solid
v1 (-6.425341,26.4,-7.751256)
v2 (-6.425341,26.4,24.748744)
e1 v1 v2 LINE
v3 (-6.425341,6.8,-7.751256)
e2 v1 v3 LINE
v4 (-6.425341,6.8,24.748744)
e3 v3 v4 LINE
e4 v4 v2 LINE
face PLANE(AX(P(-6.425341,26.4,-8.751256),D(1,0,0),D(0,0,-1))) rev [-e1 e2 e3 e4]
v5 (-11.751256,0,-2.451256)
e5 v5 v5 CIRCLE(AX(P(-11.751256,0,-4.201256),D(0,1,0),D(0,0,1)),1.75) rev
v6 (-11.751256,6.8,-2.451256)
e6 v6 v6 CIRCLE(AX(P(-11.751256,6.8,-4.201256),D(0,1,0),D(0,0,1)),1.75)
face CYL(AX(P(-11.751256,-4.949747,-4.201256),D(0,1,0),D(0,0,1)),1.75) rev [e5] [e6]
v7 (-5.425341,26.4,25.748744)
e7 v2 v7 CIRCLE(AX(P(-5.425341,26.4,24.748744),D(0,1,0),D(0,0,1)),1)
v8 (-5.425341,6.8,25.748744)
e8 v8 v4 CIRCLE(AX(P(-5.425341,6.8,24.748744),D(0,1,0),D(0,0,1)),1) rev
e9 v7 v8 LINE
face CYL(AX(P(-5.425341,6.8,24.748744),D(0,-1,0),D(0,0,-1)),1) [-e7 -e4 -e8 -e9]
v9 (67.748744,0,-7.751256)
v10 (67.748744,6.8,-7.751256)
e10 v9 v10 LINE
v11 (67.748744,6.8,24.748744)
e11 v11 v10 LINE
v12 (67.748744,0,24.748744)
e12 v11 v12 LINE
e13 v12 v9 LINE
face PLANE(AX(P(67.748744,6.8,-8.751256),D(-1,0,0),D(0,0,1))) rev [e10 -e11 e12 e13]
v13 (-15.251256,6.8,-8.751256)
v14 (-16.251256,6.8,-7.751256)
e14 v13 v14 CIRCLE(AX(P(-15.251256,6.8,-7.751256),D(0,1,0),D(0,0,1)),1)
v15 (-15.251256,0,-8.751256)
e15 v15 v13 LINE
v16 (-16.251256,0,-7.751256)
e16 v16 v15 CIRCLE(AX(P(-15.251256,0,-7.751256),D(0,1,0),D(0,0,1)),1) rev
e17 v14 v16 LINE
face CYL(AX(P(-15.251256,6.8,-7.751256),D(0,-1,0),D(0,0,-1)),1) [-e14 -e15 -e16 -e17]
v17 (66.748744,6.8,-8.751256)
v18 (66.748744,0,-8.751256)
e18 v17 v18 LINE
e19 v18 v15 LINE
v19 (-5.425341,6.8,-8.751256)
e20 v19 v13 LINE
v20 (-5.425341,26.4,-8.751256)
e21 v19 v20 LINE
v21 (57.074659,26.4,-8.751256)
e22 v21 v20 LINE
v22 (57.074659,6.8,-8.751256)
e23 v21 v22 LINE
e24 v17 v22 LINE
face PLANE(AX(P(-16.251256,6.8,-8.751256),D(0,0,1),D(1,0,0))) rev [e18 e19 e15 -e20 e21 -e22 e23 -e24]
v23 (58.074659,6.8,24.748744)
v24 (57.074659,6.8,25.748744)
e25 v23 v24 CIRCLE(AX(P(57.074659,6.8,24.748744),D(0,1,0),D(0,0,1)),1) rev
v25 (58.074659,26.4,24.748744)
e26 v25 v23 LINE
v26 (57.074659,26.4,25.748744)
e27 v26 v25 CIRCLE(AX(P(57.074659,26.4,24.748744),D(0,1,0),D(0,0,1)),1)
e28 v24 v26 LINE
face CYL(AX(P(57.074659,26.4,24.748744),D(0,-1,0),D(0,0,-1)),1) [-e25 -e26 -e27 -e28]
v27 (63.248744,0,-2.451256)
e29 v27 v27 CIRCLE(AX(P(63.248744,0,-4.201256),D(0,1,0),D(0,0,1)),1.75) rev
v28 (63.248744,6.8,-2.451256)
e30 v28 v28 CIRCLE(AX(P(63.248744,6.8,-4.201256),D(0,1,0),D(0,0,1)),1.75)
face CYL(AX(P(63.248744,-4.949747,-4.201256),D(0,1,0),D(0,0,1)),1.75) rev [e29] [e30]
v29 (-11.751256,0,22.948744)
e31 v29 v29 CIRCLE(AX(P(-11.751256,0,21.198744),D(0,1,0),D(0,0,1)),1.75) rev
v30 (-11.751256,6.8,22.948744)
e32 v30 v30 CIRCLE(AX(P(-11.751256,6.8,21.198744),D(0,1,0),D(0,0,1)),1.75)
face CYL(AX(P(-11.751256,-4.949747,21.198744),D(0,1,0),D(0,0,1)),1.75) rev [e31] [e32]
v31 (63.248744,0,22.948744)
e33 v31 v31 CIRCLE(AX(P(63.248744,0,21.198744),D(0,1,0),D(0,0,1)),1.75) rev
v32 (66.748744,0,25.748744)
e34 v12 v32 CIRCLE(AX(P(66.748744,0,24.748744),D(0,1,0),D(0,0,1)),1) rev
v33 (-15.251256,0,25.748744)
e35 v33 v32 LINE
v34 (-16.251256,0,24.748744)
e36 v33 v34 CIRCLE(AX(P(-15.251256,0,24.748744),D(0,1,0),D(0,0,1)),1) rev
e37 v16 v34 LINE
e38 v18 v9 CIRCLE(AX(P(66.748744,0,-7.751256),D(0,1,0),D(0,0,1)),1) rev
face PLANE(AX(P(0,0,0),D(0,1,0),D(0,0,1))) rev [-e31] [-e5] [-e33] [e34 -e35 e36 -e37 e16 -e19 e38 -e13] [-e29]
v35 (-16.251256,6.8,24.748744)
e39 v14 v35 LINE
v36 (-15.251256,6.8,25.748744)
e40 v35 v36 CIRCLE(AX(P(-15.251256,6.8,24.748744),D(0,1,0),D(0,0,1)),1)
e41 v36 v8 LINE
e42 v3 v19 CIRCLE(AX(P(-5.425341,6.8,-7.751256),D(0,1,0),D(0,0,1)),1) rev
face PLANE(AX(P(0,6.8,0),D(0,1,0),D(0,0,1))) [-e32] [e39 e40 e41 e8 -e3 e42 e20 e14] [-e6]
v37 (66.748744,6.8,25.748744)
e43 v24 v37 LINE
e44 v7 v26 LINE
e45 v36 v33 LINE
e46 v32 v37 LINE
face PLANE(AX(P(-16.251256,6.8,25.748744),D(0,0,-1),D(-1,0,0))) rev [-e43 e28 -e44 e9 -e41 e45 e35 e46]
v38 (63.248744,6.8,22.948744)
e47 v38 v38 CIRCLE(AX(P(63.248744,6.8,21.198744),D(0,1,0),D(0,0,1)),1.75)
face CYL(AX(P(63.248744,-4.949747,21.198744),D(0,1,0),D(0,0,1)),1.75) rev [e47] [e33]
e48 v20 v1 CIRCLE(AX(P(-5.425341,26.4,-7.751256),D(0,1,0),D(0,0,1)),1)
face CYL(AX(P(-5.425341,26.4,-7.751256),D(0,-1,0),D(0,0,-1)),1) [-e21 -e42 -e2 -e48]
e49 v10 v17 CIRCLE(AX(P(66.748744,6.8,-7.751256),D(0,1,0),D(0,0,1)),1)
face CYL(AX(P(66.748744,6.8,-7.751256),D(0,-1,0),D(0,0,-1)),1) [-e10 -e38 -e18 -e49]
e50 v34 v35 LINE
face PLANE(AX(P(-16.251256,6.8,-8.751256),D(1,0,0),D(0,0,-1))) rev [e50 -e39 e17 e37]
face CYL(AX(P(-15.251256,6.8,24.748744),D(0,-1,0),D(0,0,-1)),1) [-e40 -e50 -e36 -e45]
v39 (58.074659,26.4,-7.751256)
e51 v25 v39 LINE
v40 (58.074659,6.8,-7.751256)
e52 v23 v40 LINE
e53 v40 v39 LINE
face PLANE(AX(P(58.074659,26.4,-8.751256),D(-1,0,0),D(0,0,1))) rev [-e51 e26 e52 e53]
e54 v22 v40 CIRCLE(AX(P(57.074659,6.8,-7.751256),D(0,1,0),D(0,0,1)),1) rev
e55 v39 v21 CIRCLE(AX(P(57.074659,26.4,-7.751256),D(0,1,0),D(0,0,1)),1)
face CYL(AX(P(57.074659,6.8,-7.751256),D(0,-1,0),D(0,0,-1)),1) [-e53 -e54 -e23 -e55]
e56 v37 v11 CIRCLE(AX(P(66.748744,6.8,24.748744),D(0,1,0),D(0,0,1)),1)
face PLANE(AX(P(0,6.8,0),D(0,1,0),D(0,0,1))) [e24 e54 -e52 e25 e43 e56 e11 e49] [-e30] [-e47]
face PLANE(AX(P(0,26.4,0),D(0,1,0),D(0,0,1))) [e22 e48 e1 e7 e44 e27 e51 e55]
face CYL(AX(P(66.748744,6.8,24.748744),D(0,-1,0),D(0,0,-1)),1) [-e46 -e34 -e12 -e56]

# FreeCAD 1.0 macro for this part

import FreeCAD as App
import Part
import Sketcher

V = App.Vector


def edges_at(feature, points):
    """Names of the edges that pass closest to the given points."""
    edges = feature.Shape.Edges
    near = lambda p: min(range(len(edges)), key=lambda i: edges[i].distToShape(Part.Vertex(*p))[0])
    return sorted({f"Edge{near(p) + 1}" for p in points})

doc = App.newDocument("Part")
body = doc.addObject("PartDesign::Body", "Body")

# Sketch on XZ plane
sketch1 = body.newObject("Sketcher::SketchObject", "Sketch")
sketch1.AttachmentSupport = (doc.getObject("XZ_Plane"), [""])
sketch1.MapMode = "FlatFace"
sketch1.addGeometry([
    Part.LineSegment(V(-16, -9, 0), V(-16, 26, 0)),
    Part.LineSegment(V(-16, 26, 0), V(68, 26, 0)),
    Part.LineSegment(V(68, 26, 0), V(68, -9, 0)),
    Part.LineSegment(V(68, -9, 0), V(-16, -9, 0)),
], False)
sketch1.addConstraint([
    Sketcher.Constraint("Coincident", 0, 2, 1, 1),
    Sketcher.Constraint("Coincident", 1, 2, 2, 1),
    Sketcher.Constraint("Coincident", 2, 2, 3, 1),
    Sketcher.Constraint("Coincident", 3, 2, 0, 1),
    Sketcher.Constraint("Vertical", 0),
    Sketcher.Constraint("Horizontal", 1),
    Sketcher.Constraint("Vertical", 2),
    Sketcher.Constraint("Horizontal", 3),
    Sketcher.Constraint("DistanceX", 1, 1, 1, 2, 84.0),
    Sketcher.Constraint("DistanceY", 0, 1, 0, 2, 34.5),
    Sketcher.Constraint("DistanceX", 0, 2, -1, 1, 16.251256),
    Sketcher.Constraint("DistanceY", -1, 1, 0, 2, 25.748744),
])
pad1 = body.newObject("PartDesign::Pad", "Pad")
pad1.Profile = sketch1
pad1.Length = 6.8
pad1.Reversed = True

# Sketch on XZ plane
sketch2 = body.newObject("Sketcher::SketchObject", "Sketch001")
sketch2.AttachmentSupport = (doc.getObject("XZ_Plane"), [""])
sketch2.MapMode = "FlatFace"
sketch2.AttachmentOffset = App.Placement(V(0, 0, -6.8), App.Rotation())
sketch2.addGeometry([
    Part.LineSegment(V(-6, -9, 0), V(-6, 26, 0)),
    Part.LineSegment(V(-6, 26, 0), V(58, 26, 0)),
    Part.LineSegment(V(58, 26, 0), V(58, -9, 0)),
    Part.LineSegment(V(58, -9, 0), V(-6, -9, 0)),
], False)
sketch2.addConstraint([
    Sketcher.Constraint("Coincident", 0, 2, 1, 1),
    Sketcher.Constraint("Coincident", 1, 2, 2, 1),
    Sketcher.Constraint("Coincident", 2, 2, 3, 1),
    Sketcher.Constraint("Coincident", 3, 2, 0, 1),
    Sketcher.Constraint("Vertical", 0),
    Sketcher.Constraint("Horizontal", 1),
    Sketcher.Constraint("Vertical", 2),
    Sketcher.Constraint("Horizontal", 3),
    Sketcher.Constraint("DistanceX", 1, 1, 1, 2, 64.5),
    Sketcher.Constraint("DistanceY", 0, 1, 0, 2, 34.5),
    Sketcher.Constraint("DistanceX", 0, 2, -1, 1, 6.425341),
    Sketcher.Constraint("DistanceY", -1, 1, 0, 2, 25.748744),
])
pad2 = body.newObject("PartDesign::Pad", "Pad001")
pad2.Profile = sketch2
pad2.Length = 19.6
pad2.Reversed = True

# Sketch on XZ plane
sketch3 = body.newObject("Sketcher::SketchObject", "Sketch002")
sketch3.AttachmentSupport = (doc.getObject("XZ_Plane"), [""])
sketch3.MapMode = "FlatFace"
sketch3.AttachmentOffset = App.Placement(V(0, 0, -6.8), App.Rotation())
sketch3.addGeometry([
    Part.Circle(V(63.2, -4.2, 0), V(0, 0, 1), 1.8),
    Part.Circle(V(63.2, 21.2, 0), V(0, 0, 1), 1.8),
    Part.Circle(V(-11.8, 21.2, 0), V(0, 0, 1), 1.8),
    Part.Circle(V(-11.8, -4.2, 0), V(0, 0, 1), 1.8),
], False)
sketch3.addConstraint([
    Sketcher.Constraint("Equal", 0, 1),
    Sketcher.Constraint("Equal", 1, 2),
    Sketcher.Constraint("Equal", 2, 3),
    Sketcher.Constraint("Horizontal", 1, 3, 2, 3),
    Sketcher.Constraint("Horizontal", 0, 3, 3, 3),
    Sketcher.Constraint("Vertical", 0, 3, 1, 3),
    Sketcher.Constraint("Vertical", 2, 3, 3, 3),
    Sketcher.Constraint("Diameter", 0, 3.5),
    Sketcher.Constraint("DistanceX", 2, 3, 1, 3, 75.0),
    Sketcher.Constraint("DistanceY", 0, 3, 1, 3, 25.4),
    Sketcher.Constraint("DistanceX", -1, 1, 0, 3, 63.248744),
    Sketcher.Constraint("DistanceY", 0, 3, -1, 1, 4.201256),
])
pocket1 = body.newObject("PartDesign::Pocket", "Pocket")
pocket1.Profile = sketch3
pocket1.Length = 6.8
pocket1.Reversed = True
doc.recompute()

fillet = body.newObject("PartDesign::Fillet", "Fillet")
fillet.Base = (pocket1, edges_at(pocket1, [
    (-16.251, 3.4, -8.751),
    (67.749, 3.4, -8.751),
    (67.749, 3.4, 25.749),
    (-16.251, 3.4, 25.749),
]))
fillet.Radius = 1
doc.recompute()

fillet2 = body.newObject("PartDesign::Fillet", "Fillet001")
fillet2.Base = (fillet, edges_at(fillet, [
    (-6.425, 16.6, -8.751),
    (-6.425, 16.6, 25.749),
    (58.075, 16.6, 25.749),
    (58.075, 16.6, -8.751),
]))
fillet2.Radius = 1

doc.recompute()
